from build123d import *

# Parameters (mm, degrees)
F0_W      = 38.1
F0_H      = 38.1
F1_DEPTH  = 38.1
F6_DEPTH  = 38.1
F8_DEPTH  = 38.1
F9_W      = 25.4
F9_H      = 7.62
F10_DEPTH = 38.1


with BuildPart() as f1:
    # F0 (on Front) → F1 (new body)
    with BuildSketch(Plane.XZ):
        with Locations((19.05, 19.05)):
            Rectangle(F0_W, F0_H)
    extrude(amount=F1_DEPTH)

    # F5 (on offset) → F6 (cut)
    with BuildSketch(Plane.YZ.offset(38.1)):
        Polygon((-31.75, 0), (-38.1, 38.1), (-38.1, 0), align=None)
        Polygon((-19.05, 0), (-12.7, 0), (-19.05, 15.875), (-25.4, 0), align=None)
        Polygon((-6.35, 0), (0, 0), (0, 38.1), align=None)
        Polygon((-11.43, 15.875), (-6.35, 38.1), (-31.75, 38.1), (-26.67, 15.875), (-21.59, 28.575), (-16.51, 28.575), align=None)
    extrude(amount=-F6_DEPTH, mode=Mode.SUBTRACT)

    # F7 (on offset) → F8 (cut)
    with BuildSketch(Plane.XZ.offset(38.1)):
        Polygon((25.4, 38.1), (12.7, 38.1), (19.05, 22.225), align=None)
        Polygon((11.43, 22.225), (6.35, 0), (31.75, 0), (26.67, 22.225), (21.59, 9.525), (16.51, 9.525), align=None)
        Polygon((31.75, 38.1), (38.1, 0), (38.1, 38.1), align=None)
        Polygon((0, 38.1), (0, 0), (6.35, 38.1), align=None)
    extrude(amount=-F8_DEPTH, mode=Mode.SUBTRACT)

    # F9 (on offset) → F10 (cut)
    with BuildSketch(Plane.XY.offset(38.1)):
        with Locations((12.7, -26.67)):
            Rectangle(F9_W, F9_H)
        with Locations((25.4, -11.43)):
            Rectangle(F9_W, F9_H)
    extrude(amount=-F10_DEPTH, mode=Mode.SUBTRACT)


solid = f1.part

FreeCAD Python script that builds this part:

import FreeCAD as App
import Part
import Sketcher
Q = App.Units.Quantity

doc = App.newDocument("Part")
body = doc.addObject("PartDesign::Body", "Body")

sketch1 = doc.addObject("Sketcher::SketchObject", "Sketch")
body.addObject(sketch1)
sketch1.AttachmentSupport = (doc.XZ_Plane, [""])
sketch1.MapMode = "FlatFace"
sketch1.addGeometry(Part.LineSegment(App.Vector(0, 38, 0), App.Vector(0, 0, 0)), False)
sketch1.addGeometry(Part.LineSegment(App.Vector(0, 0, 0), App.Vector(38, 0, 0)), False)
sketch1.addGeometry(Part.LineSegment(App.Vector(38, 0, 0), App.Vector(38, 38, 0)), False)
sketch1.addGeometry(Part.LineSegment(App.Vector(38, 38, 0), App.Vector(0, 38, 0)), False)
sketch1.addConstraint(Sketcher.Constraint("Coincident", 0, 2, 1, 1))
sketch1.addConstraint(Sketcher.Constraint("Coincident", 1, 2, 2, 1))
sketch1.addConstraint(Sketcher.Constraint("Coincident", 2, 2, 3, 1))
sketch1.addConstraint(Sketcher.Constraint("Coincident", 3, 2, 0, 1))
sketch1.addConstraint(Sketcher.Constraint("Vertical", 0))
sketch1.addConstraint(Sketcher.Constraint("Horizontal", 1))
sketch1.addConstraint(Sketcher.Constraint("Vertical", 2))
sketch1.addConstraint(Sketcher.Constraint("Horizontal", 3))
sketch1.addConstraint(Sketcher.Constraint("Coincident", 0, 2, -1, 1))
sketch1.addConstraint(Sketcher.Constraint("Equal", 3, 0))
sketch1.addConstraint(Sketcher.Constraint("DistanceX", 1, 1, 1, 2, Q("1.5 in")))
pad1 = doc.addObject("PartDesign::Pad", "Pad")
body.addObject(pad1)
pad1.Profile = sketch1
pad1.Length = Q("1.5 in")

sketch2 = doc.addObject("Sketcher::SketchObject", "Sketch001")
body.addObject(sketch2)
sketch2.AttachmentSupport = (doc.YZ_Plane, [""])
sketch2.MapMode = "FlatFace"
sketch2.AttachmentOffset = App.Placement(App.Vector(0, 0, 1.5 * 25.4), App.Rotation())
sketch2.addGeometry(Part.LineSegment(App.Vector(-32, 0, 0), App.Vector(-38, 38, 0)), False)
sketch2.addGeometry(Part.LineSegment(App.Vector(-38, 38, 0), App.Vector(-38, 0, 0)), False)
sketch2.addGeometry(Part.LineSegment(App.Vector(-38, 0, 0), App.Vector(-32, 0, 0)), False)
sketch2.addGeometry(Part.LineSegment(App.Vector(-13, 0, 0), App.Vector(-19, 16, 0)), False)
sketch2.addGeometry(Part.LineSegment(App.Vector(-19, 16, 0), App.Vector(-25, 0, 0)), False)
sketch2.addGeometry(Part.LineSegment(App.Vector(-25, 0, 0), App.Vector(-13, 0, 0)), False)
sketch2.addGeometry(Part.LineSegment(App.Vector(-6, 0, 0), App.Vector(0, 0, 0)), False)
sketch2.addGeometry(Part.LineSegment(App.Vector(0, 0, 0), App.Vector(0, 38, 0)), False)
sketch2.addGeometry(Part.LineSegment(App.Vector(0, 38, 0), App.Vector(-6, 0, 0)), False)
sketch2.addGeometry(Part.LineSegment(App.Vector(-11, 16, 0), App.Vector(-6, 38, 0)), False)
sketch2.addGeometry(Part.LineSegment(App.Vector(-6, 38, 0), App.Vector(-32, 38, 0)), False)
sketch2.addGeometry(Part.LineSegment(App.Vector(-32, 38, 0), App.Vector(-27, 16, 0)), False)
sketch2.addGeometry(Part.LineSegment(App.Vector(-27, 16, 0), App.Vector(-22, 29, 0)), False)
sketch2.addGeometry(Part.LineSegment(App.Vector(-22, 29, 0), App.Vector(-17, 29, 0)), False)
sketch2.addGeometry(Part.LineSegment(App.Vector(-17, 29, 0), App.Vector(-11, 16, 0)), False)
sketch2.addConstraint(Sketcher.Constraint("Coincident", 0, 2, 1, 1))
sketch2.addConstraint(Sketcher.Constraint("Coincident", 1, 2, 2, 1))
sketch2.addConstraint(Sketcher.Constraint("Coincident", 2, 2, 0, 1))
sketch2.addConstraint(Sketcher.Constraint("Coincident", 3, 2, 4, 1))
sketch2.addConstraint(Sketcher.Constraint("Coincident", 4, 2, 5, 1))
sketch2.addConstraint(Sketcher.Constraint("Coincident", 5, 2, 3, 1))
sketch2.addConstraint(Sketcher.Constraint("Coincident", 6, 2, 7, 1))
sketch2.addConstraint(Sketcher.Constraint("Coincident", 7, 2, 8, 1))
sketch2.addConstraint(Sketcher.Constraint("Coincident", 8, 2, 6, 1))
sketch2.addConstraint(Sketcher.Constraint("Coincident", 9, 2, 10, 1))
sketch2.addConstraint(Sketcher.Constraint("Coincident", 10, 2, 11, 1))
sketch2.addConstraint(Sketcher.Constraint("Coincident", 11, 2, 12, 1))
sketch2.addConstraint(Sketcher.Constraint("Coincident", 12, 2, 13, 1))
sketch2.addConstraint(Sketcher.Constraint("Coincident", 13, 2, 14, 1))
sketch2.addConstraint(Sketcher.Constraint("Coincident", 14, 2, 9, 1))
sketch2.addConstraint(Sketcher.Constraint("Vertical", 1))
sketch2.addConstraint(Sketcher.Constraint("Horizontal", 2))
sketch2.addConstraint(Sketcher.Constraint("Horizontal", 5))
sketch2.addConstraint(Sketcher.Constraint("Horizontal", 6))
sketch2.addConstraint(Sketcher.Constraint("Vertical", 7))
sketch2.addConstraint(Sketcher.Constraint("Horizontal", 10))
sketch2.addConstraint(Sketcher.Constraint("Horizontal", 13))
sketch2.addConstraint(Sketcher.Constraint("Coincident", 6, 2, -1, 1))
sketch2.addConstraint(Sketcher.Constraint("PointOnObject", 1, 2, -1))
sketch2.addConstraint(Sketcher.Constraint("PointOnObject", 4, 2, -1))
sketch2.addConstraint(Sketcher.Constraint("Parallel", 4, 12))
sketch2.addConstraint(Sketcher.Constraint("Parallel", 3, 14))
sketch2.addConstraint(Sketcher.Constraint("Horizontal", 0, 2, 7, 2))
sketch2.addConstraint(Sketcher.Constraint("Horizontal", 7, 2, 9, 2))
sketch2.addConstraint(Sketcher.Constraint("Horizontal", 3, 2, 11, 2))
sketch2.addConstraint(Sketcher.Constraint("Horizontal", 11, 2, 14, 2))
sketch2.addConstraint(Sketcher.Constraint("Vertical", 8, 2, 9, 2))
sketch2.addConstraint(Sketcher.Constraint("Vertical", 2, 2, 10, 2))
sketch2.addConstraint(Sketcher.Constraint("Equal", 2, 6))
sketch2.addConstraint(Sketcher.Constraint("Equal", 3, 4))
sketch2.addConstraint(Sketcher.Constraint("Equal", 9, 11))
sketch2.addConstraint(Sketcher.Constraint("DistanceX", 10, 2, 10, 1, Q("1 in")))
sketch2.addConstraint(Sketcher.Constraint("DistanceX", 5, 1, 5, 2, Q("0.5 in")))
sketch2.addConstraint(Sketcher.Constraint("DistanceX", 13, 1, 13, 2, Q("0.2 in")))
sketch2.addConstraint(Sketcher.Constraint("DistanceY", 1, 2, 1, 1, Q("1.5 in")))
sketch2.addConstraint(Sketcher.Constraint("DistanceX", 4, 2, -1, 1, Q("1 in")))
sketch2.addConstraint(Sketcher.Constraint("DistanceX", 1, 2, 5, 2, Q("1 in")))
sketch2.addConstraint(Sketcher.Constraint("DistanceX", 11, 2, 3, 2, Q("0.3 in")))
sketch2.addConstraint(Sketcher.Constraint("DistanceY", 3, 2, 12, 2, Q("0.5 in")))
pocket1 = doc.addObject("PartDesign::Pocket", "Pocket")
body.addObject(pocket1)
pocket1.Profile = sketch2
pocket1.Length = Q("1.5 in")

sketch3 = doc.addObject("Sketcher::SketchObject", "Sketch002")
body.addObject(sketch3)
sketch3.AttachmentSupport = (doc.XZ_Plane, [""])
sketch3.MapMode = "FlatFace"
sketch3.AttachmentOffset = App.Placement(App.Vector(0, 0, 1.5 * 25.4), App.Rotation())
sketch3.addGeometry(Part.LineSegment(App.Vector(25, 38, 0), App.Vector(13, 38, 0)), False)
sketch3.addGeometry(Part.LineSegment(App.Vector(13, 38, 0), App.Vector(19, 22, 0)), False)
sketch3.addGeometry(Part.LineSegment(App.Vector(19, 22, 0), App.Vector(25, 38, 0)), False)
sketch3.addGeometry(Part.LineSegment(App.Vector(11, 22, 0), App.Vector(6, 0, 0)), False)
sketch3.addGeometry(Part.LineSegment(App.Vector(6, 0, 0), App.Vector(32, 0, 0)), False)
sketch3.addGeometry(Part.LineSegment(App.Vector(32, 0, 0), App.Vector(27, 22, 0)), False)
sketch3.addGeometry(Part.LineSegment(App.Vector(27, 22, 0), App.Vector(22, 10, 0)), False)
sketch3.addGeometry(Part.LineSegment(App.Vector(22, 10, 0), App.Vector(17, 10, 0)), False)
sketch3.addGeometry(Part.LineSegment(App.Vector(17, 10, 0), App.Vector(11, 22, 0)), False)
sketch3.addGeometry(Part.LineSegment(App.Vector(32, 38, 0), App.Vector(38, 0, 0)), False)
sketch3.addGeometry(Part.LineSegment(App.Vector(38, 0, 0), App.Vector(38, 38, 0)), False)
sketch3.addGeometry(Part.LineSegment(App.Vector(38, 38, 0), App.Vector(32, 38, 0)), False)
sketch3.addGeometry(Part.LineSegment(App.Vector(0, 38, 0), App.Vector(0, 0, 0)), False)
sketch3.addGeometry(Part.LineSegment(App.Vector(0, 0, 0), App.Vector(6, 38, 0)), False)
sketch3.addGeometry(Part.LineSegment(App.Vector(6, 38, 0), App.Vector(0, 38, 0)), False)
sketch3.addConstraint(Sketcher.Constraint("Coincident", 0, 2, 1, 1))
sketch3.addConstraint(Sketcher.Constraint("Coincident", 1, 2, 2, 1))
sketch3.addConstraint(Sketcher.Constraint("Coincident", 2, 2, 0, 1))
sketch3.addConstraint(Sketcher.Constraint("Coincident", 3, 2, 4, 1))
sketch3.addConstraint(Sketcher.Constraint("Coincident", 4, 2, 5, 1))
sketch3.addConstraint(Sketcher.Constraint("Coincident", 5, 2, 6, 1))
sketch3.addConstraint(Sketcher.Constraint("Coincident", 6, 2, 7, 1))
sketch3.addConstraint(Sketcher.Constraint("Coincident", 7, 2, 8, 1))
sketch3.addConstraint(Sketcher.Constraint("Coincident", 8, 2, 3, 1))
sketch3.addConstraint(Sketcher.Constraint("Coincident", 9, 2, 10, 1))
sketch3.addConstraint(Sketcher.Constraint("Coincident", 10, 2, 11, 1))
sketch3.addConstraint(Sketcher.Constraint("Coincident", 11, 2, 9, 1))
sketch3.addConstraint(Sketcher.Constraint("Coincident", 12, 2, 13, 1))
sketch3.addConstraint(Sketcher.Constraint("Coincident", 13, 2, 14, 1))
sketch3.addConstraint(Sketcher.Constraint("Coincident", 14, 2, 12, 1))
sketch3.addConstraint(Sketcher.Constraint("Horizontal", 0))
sketch3.addConstraint(Sketcher.Constraint("Horizontal", 4))
sketch3.addConstraint(Sketcher.Constraint("Horizontal", 7))
sketch3.addConstraint(Sketcher.Constraint("Vertical", 10))
sketch3.addConstraint(Sketcher.Constraint("Horizontal", 11))
sketch3.addConstraint(Sketcher.Constraint("Vertical", 12))
sketch3.addConstraint(Sketcher.Constraint("Horizontal", 14))
sketch3.addConstraint(Sketcher.Constraint("Coincident", 12, 2, -1, 1))
sketch3.addConstraint(Sketcher.Constraint("PointOnObject", 3, 2, -1))
sketch3.addConstraint(Sketcher.Constraint("PointOnObject", 9, 2, -1))
sketch3.addConstraint(Sketcher.Constraint("Parallel", 2, 6))
sketch3.addConstraint(Sketcher.Constraint("Parallel", 1, 8))
sketch3.addConstraint(Sketcher.Constraint("Horizontal", 1, 2, 5, 2))
sketch3.addConstraint(Sketcher.Constraint("Horizontal", 5, 2, 8, 2))
sketch3.addConstraint(Sketcher.Constraint("Horizontal", 2, 2, 10, 2))
sketch3.addConstraint(Sketcher.Constraint("Horizontal", 11, 2, 13, 2))
sketch3.addConstraint(Sketcher.Constraint("Vertical", 4, 2, 11, 2))
sketch3.addConstraint(Sketcher.Constraint("Vertical", 3, 2, 13, 2))
sketch3.addConstraint(Sketcher.Constraint("Equal", 11, 14))
sketch3.addConstraint(Sketcher.Constraint("Equal", 1, 2))
sketch3.addConstraint(Sketcher.Constraint("Equal", 3, 5))
sketch3.addConstraint(Sketcher.Constraint("DistanceX", 4, 1, 4, 2, Q("1 in")))
sketch3.addConstraint(Sketcher.Constraint("DistanceX", 0, 2, 0, 1, Q("0.5 in")))
sketch3.addConstraint(Sketcher.Constraint("DistanceX", 7, 2, 7, 1, Q("0.2 in")))
sketch3.addConstraint(Sketcher.Constraint("DistanceY", 10, 1, 10, 2, Q("1.5 in")))
sketch3.addConstraint(Sketcher.Constraint("DistanceX", -1, 1, 2, 2, Q("1 in")))
sketch3.addConstraint(Sketcher.Constraint("DistanceX", 0, 2, 10, 2, Q("1 in")))
sketch3.addConstraint(Sketcher.Constraint("DistanceX", 1, 2, 5, 2, Q("0.3 in")))
sketch3.addConstraint(Sketcher.Constraint("DistanceY", 6, 2, 1, 2, Q("0.5 in")))
pocket2 = doc.addObject("PartDesign::Pocket", "Pocket001")
body.addObject(pocket2)
pocket2.Profile = sketch3
pocket2.Length = Q("1.5 in")

sketch4 = doc.addObject("Sketcher::SketchObject", "Sketch003")
body.addObject(sketch4)
sketch4.AttachmentSupport = (doc.XY_Plane, [""])
sketch4.MapMode = "FlatFace"
sketch4.AttachmentOffset = App.Placement(App.Vector(0, 0, 1.5 * 25.4), App.Rotation())
sketch4.addGeometry(Part.LineSegment(App.Vector(0, -23, 0), App.Vector(0, -30, 0)), False)
sketch4.addGeometry(Part.LineSegment(App.Vector(0, -30, 0), App.Vector(25, -30, 0)), False)
sketch4.addGeometry(Part.LineSegment(App.Vector(25, -30, 0), App.Vector(25, -23, 0)), False)
sketch4.addGeometry(Part.LineSegment(App.Vector(25, -23, 0), App.Vector(0, -23, 0)), False)
sketch4.addGeometry(Part.LineSegment(App.Vector(13, -8, 0), App.Vector(13, -15, 0)), False)
sketch4.addGeometry(Part.LineSegment(App.Vector(13, -15, 0), App.Vector(38, -15, 0)), False)
sketch4.addGeometry(Part.LineSegment(App.Vector(38, -15, 0), App.Vector(38, -8, 0)), False)
sketch4.addGeometry(Part.LineSegment(App.Vector(38, -8, 0), App.Vector(13, -8, 0)), False)
sketch4.addConstraint(Sketcher.Constraint("Coincident", 0, 2, 1, 1))
sketch4.addConstraint(Sketcher.Constraint("Coincident", 1, 2, 2, 1))
sketch4.addConstraint(Sketcher.Constraint("Coincident", 2, 2, 3, 1))
sketch4.addConstraint(Sketcher.Constraint("Coincident", 3, 2, 0, 1))
sketch4.addConstraint(Sketcher.Constraint("Coincident", 4, 2, 5, 1))
sketch4.addConstraint(Sketcher.Constraint("Coincident", 5, 2, 6, 1))
sketch4.addConstraint(Sketcher.Constraint("Coincident", 6, 2, 7, 1))
sketch4.addConstraint(Sketcher.Constraint("Coincident", 7, 2, 4, 1))
sketch4.addConstraint(Sketcher.Constraint("Vertical", 0))
sketch4.addConstraint(Sketcher.Constraint("Horizontal", 1))
sketch4.addConstraint(Sketcher.Constraint("Vertical", 2))
sketch4.addConstraint(Sketcher.Constraint("Horizontal", 3))
sketch4.addConstraint(Sketcher.Constraint("Vertical", 4))
sketch4.addConstraint(Sketcher.Constraint("Horizontal", 5))
sketch4.addConstraint(Sketcher.Constraint("Vertical", 6))
sketch4.addConstraint(Sketcher.Constraint("Horizontal", 7))
sketch4.addConstraint(Sketcher.Constraint("PointOnObject", 0, 2, -2))
sketch4.addConstraint(Sketcher.Constraint("Equal", 3, 5))
sketch4.addConstraint(Sketcher.Constraint("Equal", 2, 4))
sketch4.addConstraint(Sketcher.Constraint("DistanceX", 1, 1, 1, 2, Q("1 in")))
sketch4.addConstraint(Sketcher.Constraint("DistanceY", 0, 2, 0, 1, Q("0.3 in")))
sketch4.addConstraint(Sketcher.Constraint("DistanceY", 0, 2, -1, 1, Q("1.2 in")))
sketch4.addConstraint(Sketcher.Constraint("DistanceX", -1, 1, 4, 2, Q("0.5 in")))
sketch4.addConstraint(Sketcher.Constraint("DistanceY", 4, 2, -1, 1, Q("0.6 in")))
pocket3 = doc.addObject("PartDesign::Pocket", "Pocket002")
body.addObject(pocket3)
pocket3.Profile = sketch4
pocket3.Length = Q("1.5 in")

doc.recompute()
